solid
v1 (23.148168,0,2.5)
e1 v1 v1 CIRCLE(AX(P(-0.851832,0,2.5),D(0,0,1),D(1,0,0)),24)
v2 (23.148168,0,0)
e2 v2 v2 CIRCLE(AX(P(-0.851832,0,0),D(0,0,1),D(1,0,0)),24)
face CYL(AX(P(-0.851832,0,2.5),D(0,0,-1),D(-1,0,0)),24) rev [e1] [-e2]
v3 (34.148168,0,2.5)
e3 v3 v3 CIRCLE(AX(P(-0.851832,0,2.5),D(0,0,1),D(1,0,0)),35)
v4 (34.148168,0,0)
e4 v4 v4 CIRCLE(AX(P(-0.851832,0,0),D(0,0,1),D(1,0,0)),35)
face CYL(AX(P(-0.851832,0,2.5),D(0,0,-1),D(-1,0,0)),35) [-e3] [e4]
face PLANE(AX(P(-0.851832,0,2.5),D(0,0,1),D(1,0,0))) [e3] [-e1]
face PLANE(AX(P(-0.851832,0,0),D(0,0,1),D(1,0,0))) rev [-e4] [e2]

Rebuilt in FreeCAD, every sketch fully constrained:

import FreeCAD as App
import Part
import Sketcher

doc = App.newDocument("Part")
body = doc.addObject("PartDesign::Body", "Body")

# Sketch on XY plane
sketch1 = body.newObject("Sketcher::SketchObject", "Sketch")
sketch1.AttachmentSupport = (doc.getObject("XY_Plane"), [""])
sketch1.MapMode = "FlatFace"
sketch1.addGeometry([
    Part.Circle(App.Vector(-0.851832, 0, 0), App.Vector(0, 0, 1), 35),
    Part.Circle(App.Vector(-0.851832, 0, 0), App.Vector(0, 0, 1), 24),
], False)
sketch1.addConstraint([
    Sketcher.Constraint("Coincident", 1, 3, 0, 3),
    Sketcher.Constraint("PointOnObject", 0, 3, -1),
    Sketcher.Constraint("Diameter", 0, 70.0),
    Sketcher.Constraint("Diameter", 1, 48.0),
    Sketcher.Constraint("DistanceX", 0, 3, -1, 1, 0.851832),
])
pad1 = body.newObject("PartDesign::Pad", "Pad")
pad1.Profile = sketch1
pad1.Length = 2.5

doc.recompute()
